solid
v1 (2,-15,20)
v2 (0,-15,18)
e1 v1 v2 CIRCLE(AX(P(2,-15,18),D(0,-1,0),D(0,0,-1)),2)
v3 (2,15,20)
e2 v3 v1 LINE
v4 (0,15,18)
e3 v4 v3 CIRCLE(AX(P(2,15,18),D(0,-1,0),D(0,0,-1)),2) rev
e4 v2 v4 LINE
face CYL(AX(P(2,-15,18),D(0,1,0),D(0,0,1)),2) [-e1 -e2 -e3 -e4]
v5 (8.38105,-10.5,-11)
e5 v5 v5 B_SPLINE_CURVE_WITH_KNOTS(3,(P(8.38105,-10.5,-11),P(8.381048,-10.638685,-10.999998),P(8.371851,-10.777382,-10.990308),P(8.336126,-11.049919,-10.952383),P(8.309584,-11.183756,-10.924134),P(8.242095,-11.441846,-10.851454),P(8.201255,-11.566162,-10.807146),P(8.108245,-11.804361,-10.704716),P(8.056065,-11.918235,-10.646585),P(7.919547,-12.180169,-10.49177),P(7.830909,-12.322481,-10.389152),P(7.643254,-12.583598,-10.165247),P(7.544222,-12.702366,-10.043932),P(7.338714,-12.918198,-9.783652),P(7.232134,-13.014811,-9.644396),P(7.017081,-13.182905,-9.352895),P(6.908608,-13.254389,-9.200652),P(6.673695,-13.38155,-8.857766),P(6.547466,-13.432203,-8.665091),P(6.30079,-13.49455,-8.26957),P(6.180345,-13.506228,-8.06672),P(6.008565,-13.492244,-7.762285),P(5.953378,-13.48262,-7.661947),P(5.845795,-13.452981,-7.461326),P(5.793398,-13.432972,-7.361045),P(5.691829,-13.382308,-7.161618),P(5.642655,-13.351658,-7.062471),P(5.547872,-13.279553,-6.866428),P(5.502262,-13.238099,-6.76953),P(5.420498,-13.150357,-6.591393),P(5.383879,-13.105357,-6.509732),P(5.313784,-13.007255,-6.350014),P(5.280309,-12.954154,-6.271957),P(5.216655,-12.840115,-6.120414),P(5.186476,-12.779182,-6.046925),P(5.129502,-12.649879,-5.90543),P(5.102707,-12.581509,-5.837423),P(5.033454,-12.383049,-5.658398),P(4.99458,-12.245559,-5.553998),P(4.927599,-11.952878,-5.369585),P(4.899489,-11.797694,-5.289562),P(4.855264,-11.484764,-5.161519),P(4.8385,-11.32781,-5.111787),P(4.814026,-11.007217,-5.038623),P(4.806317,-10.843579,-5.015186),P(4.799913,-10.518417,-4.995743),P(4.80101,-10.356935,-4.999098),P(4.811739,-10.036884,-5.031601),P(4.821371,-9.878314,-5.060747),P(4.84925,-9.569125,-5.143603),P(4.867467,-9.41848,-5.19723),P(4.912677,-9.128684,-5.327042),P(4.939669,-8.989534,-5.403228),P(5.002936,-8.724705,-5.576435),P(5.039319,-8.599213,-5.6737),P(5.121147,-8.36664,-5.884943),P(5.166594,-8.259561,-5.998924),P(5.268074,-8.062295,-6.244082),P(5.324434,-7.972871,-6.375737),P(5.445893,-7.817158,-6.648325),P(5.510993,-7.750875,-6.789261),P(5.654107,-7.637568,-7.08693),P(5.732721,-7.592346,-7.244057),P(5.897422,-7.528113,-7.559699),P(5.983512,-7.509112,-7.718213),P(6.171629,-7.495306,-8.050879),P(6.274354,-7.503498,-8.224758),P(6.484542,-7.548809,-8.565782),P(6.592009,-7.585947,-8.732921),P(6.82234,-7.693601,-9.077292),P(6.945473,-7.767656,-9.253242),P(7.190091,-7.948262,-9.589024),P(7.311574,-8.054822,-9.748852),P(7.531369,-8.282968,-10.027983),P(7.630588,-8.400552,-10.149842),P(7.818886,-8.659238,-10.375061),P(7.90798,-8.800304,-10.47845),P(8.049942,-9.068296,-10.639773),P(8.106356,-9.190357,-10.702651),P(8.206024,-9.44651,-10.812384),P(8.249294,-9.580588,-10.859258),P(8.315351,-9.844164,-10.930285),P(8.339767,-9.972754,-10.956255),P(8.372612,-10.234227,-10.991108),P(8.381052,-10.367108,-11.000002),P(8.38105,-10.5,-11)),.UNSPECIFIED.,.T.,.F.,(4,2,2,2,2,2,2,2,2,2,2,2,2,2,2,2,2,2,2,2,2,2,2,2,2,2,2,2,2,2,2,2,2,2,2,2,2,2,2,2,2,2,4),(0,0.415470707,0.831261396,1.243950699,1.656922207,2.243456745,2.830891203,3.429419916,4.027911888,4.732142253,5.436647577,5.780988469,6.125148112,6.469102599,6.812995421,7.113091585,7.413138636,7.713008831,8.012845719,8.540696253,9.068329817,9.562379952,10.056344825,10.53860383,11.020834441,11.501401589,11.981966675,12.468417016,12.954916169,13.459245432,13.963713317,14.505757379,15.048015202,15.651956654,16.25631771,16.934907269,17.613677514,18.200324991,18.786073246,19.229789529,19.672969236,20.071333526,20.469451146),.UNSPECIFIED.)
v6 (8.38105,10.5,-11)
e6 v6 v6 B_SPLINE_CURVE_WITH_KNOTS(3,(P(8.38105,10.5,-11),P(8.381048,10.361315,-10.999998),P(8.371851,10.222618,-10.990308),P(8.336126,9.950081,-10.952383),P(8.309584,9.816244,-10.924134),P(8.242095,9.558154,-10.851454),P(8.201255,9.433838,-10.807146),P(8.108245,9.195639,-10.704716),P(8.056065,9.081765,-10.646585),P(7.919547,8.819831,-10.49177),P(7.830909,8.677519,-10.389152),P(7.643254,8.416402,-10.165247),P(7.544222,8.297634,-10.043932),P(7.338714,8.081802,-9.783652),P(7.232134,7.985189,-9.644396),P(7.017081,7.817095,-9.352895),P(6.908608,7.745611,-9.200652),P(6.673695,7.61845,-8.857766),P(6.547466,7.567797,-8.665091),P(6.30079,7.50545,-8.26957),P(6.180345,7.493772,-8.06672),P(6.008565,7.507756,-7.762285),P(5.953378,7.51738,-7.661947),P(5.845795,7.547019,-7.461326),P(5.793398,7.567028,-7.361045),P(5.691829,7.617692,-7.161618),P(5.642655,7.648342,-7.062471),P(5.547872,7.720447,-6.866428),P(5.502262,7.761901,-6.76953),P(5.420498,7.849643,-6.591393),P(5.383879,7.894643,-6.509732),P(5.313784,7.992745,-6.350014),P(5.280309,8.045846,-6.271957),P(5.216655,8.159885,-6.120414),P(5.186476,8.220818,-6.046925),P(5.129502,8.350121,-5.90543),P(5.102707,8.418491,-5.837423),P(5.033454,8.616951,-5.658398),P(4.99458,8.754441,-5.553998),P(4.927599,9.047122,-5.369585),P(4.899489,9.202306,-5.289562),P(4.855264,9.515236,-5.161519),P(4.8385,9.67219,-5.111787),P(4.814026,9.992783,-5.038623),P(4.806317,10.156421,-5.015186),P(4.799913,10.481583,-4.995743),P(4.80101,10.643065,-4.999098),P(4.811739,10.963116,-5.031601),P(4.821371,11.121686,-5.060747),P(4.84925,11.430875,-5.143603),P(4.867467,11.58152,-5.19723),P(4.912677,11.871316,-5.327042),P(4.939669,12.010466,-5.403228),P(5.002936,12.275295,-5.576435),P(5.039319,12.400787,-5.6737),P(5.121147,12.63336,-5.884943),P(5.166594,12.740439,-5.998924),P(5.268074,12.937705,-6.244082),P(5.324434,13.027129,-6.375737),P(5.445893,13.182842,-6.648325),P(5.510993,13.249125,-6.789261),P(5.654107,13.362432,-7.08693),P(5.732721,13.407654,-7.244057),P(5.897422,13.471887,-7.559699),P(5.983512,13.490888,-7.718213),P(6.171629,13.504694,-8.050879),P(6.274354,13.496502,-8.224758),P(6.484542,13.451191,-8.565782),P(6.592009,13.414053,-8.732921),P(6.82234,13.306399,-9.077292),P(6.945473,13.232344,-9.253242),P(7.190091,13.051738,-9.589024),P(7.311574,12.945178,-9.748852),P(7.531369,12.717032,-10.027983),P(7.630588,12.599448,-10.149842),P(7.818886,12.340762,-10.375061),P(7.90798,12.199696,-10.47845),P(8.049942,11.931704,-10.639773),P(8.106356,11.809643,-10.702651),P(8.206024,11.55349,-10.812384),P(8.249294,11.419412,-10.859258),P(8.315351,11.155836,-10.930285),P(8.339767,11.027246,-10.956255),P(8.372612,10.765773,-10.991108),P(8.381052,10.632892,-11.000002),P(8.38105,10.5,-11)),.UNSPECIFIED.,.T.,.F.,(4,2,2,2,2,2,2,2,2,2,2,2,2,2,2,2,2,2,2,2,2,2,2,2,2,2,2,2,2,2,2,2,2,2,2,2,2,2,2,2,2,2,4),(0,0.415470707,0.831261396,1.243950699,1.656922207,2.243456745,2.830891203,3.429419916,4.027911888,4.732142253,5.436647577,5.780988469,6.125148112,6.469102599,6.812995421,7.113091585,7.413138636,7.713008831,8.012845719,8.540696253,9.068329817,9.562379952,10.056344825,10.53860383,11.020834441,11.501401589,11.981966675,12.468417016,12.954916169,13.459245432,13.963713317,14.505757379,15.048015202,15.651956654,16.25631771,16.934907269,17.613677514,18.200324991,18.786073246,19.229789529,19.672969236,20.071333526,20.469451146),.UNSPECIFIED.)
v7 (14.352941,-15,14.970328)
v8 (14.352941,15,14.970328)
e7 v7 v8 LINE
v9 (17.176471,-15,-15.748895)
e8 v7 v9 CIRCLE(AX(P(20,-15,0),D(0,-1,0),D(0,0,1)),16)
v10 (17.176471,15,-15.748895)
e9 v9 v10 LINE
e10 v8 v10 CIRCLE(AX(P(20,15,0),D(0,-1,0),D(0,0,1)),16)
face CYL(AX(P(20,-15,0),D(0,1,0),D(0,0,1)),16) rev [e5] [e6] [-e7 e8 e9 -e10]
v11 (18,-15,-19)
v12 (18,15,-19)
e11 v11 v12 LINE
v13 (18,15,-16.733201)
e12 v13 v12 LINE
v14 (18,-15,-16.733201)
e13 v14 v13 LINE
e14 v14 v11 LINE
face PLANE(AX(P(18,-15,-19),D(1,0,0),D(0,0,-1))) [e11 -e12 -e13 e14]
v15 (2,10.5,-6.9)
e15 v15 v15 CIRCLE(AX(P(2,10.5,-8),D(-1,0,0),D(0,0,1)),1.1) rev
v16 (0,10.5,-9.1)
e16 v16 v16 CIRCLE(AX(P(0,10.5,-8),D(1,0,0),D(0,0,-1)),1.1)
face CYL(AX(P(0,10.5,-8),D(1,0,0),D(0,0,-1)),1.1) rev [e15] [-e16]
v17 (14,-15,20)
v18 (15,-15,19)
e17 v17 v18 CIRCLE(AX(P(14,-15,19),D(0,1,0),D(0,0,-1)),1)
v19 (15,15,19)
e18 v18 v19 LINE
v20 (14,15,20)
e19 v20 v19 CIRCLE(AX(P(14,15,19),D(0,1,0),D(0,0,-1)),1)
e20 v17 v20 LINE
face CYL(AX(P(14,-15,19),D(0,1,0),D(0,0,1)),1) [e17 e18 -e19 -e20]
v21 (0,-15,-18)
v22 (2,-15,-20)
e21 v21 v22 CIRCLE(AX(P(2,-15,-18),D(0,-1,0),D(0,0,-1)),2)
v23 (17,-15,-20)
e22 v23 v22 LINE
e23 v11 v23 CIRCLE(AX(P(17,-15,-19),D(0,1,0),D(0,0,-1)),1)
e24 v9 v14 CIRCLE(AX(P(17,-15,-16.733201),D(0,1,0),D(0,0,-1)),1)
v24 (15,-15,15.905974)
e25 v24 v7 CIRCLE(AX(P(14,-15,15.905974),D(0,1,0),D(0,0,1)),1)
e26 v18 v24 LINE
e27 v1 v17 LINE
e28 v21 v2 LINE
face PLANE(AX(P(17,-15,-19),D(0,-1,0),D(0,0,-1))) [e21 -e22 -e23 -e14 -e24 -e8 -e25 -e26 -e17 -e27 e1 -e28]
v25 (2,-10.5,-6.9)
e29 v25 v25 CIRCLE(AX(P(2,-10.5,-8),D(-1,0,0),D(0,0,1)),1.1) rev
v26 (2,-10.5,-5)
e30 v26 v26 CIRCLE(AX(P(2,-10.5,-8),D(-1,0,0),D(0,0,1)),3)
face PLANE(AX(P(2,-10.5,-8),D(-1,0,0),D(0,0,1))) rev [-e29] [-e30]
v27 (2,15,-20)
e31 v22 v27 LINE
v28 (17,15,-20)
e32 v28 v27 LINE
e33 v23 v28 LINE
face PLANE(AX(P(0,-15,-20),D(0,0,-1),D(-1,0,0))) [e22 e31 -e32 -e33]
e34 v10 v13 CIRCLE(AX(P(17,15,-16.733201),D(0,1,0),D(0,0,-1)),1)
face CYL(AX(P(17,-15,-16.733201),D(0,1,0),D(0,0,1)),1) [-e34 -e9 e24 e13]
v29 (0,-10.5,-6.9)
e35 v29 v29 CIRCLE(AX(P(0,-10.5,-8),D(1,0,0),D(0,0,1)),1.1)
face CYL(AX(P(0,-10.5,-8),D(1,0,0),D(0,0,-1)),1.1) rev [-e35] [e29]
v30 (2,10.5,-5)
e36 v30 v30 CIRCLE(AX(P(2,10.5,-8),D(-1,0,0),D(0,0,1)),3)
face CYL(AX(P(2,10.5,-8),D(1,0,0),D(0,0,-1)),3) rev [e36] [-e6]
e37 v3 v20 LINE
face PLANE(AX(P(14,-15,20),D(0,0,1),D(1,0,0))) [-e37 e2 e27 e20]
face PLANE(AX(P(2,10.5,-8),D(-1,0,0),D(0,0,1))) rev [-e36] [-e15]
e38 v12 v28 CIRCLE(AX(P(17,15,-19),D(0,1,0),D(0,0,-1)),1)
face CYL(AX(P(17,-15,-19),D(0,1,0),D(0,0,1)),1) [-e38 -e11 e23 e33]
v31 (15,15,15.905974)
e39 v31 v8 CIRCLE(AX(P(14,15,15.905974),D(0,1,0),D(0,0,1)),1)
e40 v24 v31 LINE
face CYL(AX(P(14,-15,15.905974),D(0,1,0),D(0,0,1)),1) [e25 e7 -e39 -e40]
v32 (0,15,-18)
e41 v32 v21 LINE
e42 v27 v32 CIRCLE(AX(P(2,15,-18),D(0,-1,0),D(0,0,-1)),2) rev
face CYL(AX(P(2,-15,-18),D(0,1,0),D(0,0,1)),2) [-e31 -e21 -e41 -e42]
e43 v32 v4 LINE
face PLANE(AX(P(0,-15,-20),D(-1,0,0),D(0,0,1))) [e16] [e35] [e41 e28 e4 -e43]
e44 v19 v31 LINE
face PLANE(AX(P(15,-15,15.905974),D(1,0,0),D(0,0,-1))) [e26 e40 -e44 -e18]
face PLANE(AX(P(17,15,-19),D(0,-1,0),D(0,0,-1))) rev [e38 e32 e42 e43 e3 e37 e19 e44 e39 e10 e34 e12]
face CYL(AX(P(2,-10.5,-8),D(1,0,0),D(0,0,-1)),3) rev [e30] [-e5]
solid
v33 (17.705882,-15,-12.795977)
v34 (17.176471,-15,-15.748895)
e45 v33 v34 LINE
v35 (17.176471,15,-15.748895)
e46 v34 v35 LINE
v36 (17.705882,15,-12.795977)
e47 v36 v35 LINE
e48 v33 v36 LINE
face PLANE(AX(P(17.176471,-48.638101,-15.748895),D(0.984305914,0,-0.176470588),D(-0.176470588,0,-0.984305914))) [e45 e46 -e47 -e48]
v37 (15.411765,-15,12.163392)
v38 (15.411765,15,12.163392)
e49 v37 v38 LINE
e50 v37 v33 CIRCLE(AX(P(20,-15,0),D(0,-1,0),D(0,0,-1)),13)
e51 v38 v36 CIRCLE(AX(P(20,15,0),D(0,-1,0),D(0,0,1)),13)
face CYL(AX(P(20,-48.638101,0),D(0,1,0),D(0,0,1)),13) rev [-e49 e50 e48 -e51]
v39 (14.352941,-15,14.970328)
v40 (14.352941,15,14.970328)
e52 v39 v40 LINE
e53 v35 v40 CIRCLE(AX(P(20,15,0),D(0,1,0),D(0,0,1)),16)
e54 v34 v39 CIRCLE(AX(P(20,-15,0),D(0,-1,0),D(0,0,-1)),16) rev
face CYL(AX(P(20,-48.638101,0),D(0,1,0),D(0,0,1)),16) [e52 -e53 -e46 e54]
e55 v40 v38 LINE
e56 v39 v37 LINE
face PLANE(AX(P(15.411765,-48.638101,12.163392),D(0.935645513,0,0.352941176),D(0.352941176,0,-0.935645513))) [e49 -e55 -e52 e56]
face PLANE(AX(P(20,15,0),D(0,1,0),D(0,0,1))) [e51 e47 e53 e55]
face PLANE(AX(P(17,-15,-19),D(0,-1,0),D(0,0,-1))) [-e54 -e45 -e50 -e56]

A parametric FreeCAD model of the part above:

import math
import FreeCAD as App
import Part
import Sketcher

V = App.Vector
Q = App.Units.Quantity


def edges_at(feature, points):
    """Names of the edges that pass closest to the given points."""
    edges = feature.Shape.Edges
    near = lambda p: min(range(len(edges)), key=lambda i: edges[i].distToShape(Part.Vertex(*p))[0])
    return sorted({f"Edge{near(p) + 1}" for p in points})

doc = App.newDocument("Part")
body = doc.addObject("PartDesign::Body", "Body")

# Sketch on XZ plane
sketch1 = doc.addObject("Sketcher::SketchObject", "Sketch")
body.addObject(sketch1)
sketch1.AttachmentSupport = (doc.XZ_Plane, [""])
sketch1.MapMode = "FlatFace"
sketch1.addGeometry([
    Part.LineSegment(V(0, -20, 0), V(0, 20, 0)),  # 0
    Part.LineSegment(V(0, 20, 0), V(14, 20, 0)),  # 1
    Part.ArcOfCircle(Part.Circle(V(14, 19, 0), V(0, 0, 1), 1), math.radians(0), math.radians(90)),  # 2
    Part.LineSegment(V(15, 19, 0), V(15, 15.9, 0)),  # 3
    Part.ArcOfCircle(Part.Circle(V(14, 15.9, 0), V(0, 0, 1), 1), math.radians(-69), math.radians(0)),  # 4
    Part.ArcOfCircle(Part.Circle(V(20, 0, 0), V(0, 0, 1), 16), math.radians(111), math.radians(260)),  # 5
    Part.ArcOfCircle(Part.Circle(V(17, -16.7, 0), V(0, 0, 1), 1), math.radians(0), math.radians(80)),  # 6
    Part.LineSegment(V(18, -16.7, 0), V(18, -19, 0)),  # 7
    Part.ArcOfCircle(Part.Circle(V(17, -19, 0), V(0, 0, 1), 1), math.radians(-90), math.radians(0)),  # 8
    Part.LineSegment(V(17, -20, 0), V(0, -20, 0)),  # 9
], False)
sketch1.addConstraint([
    Sketcher.Constraint("Coincident", 0, 2, 1, 1),
    Sketcher.Constraint("Tangent", 1, 2, 2, 2),
    Sketcher.Constraint("Tangent", 2, 1, 3, 1),
    Sketcher.Constraint("Tangent", 3, 2, 4, 2),
    Sketcher.Constraint("Tangent", 4, 1, 5, 1),
    Sketcher.Constraint("Tangent", 5, 2, 6, 2),
    Sketcher.Constraint("Tangent", 6, 1, 7, 1),
    Sketcher.Constraint("Tangent", 7, 2, 8, 2),
    Sketcher.Constraint("Tangent", 8, 1, 9, 1),
    Sketcher.Constraint("Coincident", 9, 2, 0, 1),
    Sketcher.Constraint("Vertical", 0),
    Sketcher.Constraint("Horizontal", 1),
    Sketcher.Constraint("Vertical", 3),
    Sketcher.Constraint("Vertical", 7),
    Sketcher.Constraint("Horizontal", 9),
    Sketcher.Constraint("Equal", 2, 4),
    Sketcher.Constraint("Equal", 4, 6),
    Sketcher.Constraint("Equal", 6, 8),
    Sketcher.Constraint("Symmetric", 0, 2, 9, 2, -1, 1),
    Sketcher.Constraint("PointOnObject", 5, 3, -1),
    Sketcher.Constraint("Radius", 2, Q("1 mm")),
    Sketcher.Constraint("Radius", 5, Q("16 mm")),
    Sketcher.Constraint("DistanceX", 1, 1, 1, 2, Q("14 mm")),
    Sketcher.Constraint("DistanceX", 9, 2, 9, 1, Q("17 mm")),
    Sketcher.Constraint("DistanceY", 0, 1, 0, 2, Q("40 mm")),
    Sketcher.Constraint("DistanceX", -1, 1, 5, 3, Q("20 mm")),
])
pad1 = doc.addObject("PartDesign::Pad", "Pad")
body.addObject(pad1)
pad1.Profile = sketch1
pad1.Type = "TwoLengths"
pad1.Length = 15
pad1.Length2 = 15
pad1.Reversed = True

# Sketch on YZ plane
sketch2 = doc.addObject("Sketcher::SketchObject", "Sketch001")
body.addObject(sketch2)
sketch2.AttachmentSupport = (doc.YZ_Plane, [""])
sketch2.MapMode = "FlatFace"
sketch2.AttachmentOffset = App.Placement(V(0, 0, 18), App.Rotation())
sketch2.addGeometry([
    Part.Circle(V(10.5, -8, 0), V(0, 0, 1), 1.1),
    Part.Circle(V(-10.5, -8, 0), V(0, 0, 1), 1.1),
], False)
sketch2.addConstraint([
    Sketcher.Constraint("Equal", 0, 1),
    Sketcher.Constraint("Symmetric", 0, 3, 1, 3, -2),
    Sketcher.Constraint("Diameter", 0, Q("2.2 mm")),
    Sketcher.Constraint("DistanceY", 0, 3, -1, 1, Q("8 mm")),
    Sketcher.Constraint("DistanceX", 1, 3, 0, 3, Q("21 mm")),
])
pocket1 = doc.addObject("PartDesign::Pocket", "Pocket")
body.addObject(pocket1)
pocket1.Profile = sketch2
pocket1.Type = "ThroughAll"

# Sketch on YZ plane
sketch3 = doc.addObject("Sketcher::SketchObject", "Sketch002")
body.addObject(sketch3)
sketch3.AttachmentSupport = (doc.YZ_Plane, [""])
sketch3.MapMode = "FlatFace"
sketch3.AttachmentOffset = App.Placement(V(0, 0, 10), App.Rotation())
sketch3.addGeometry([
    Part.Circle(V(10.5, -8, 0), V(0, 0, 1), 3),
    Part.Circle(V(-10.5, -8, 0), V(0, 0, 1), 3),
], False)
sketch3.addConstraint([
    Sketcher.Constraint("Equal", 0, 1),
    Sketcher.Constraint("Symmetric", 0, 3, 1, 3, -2),
    Sketcher.Constraint("Diameter", 0, Q("6 mm")),
    Sketcher.Constraint("DistanceY", 0, 3, -1, 1, Q("8 mm")),
    Sketcher.Constraint("DistanceX", 1, 3, 0, 3, Q("21 mm")),
])
pocket2 = doc.addObject("PartDesign::Pocket", "Pocket001")
body.addObject(pocket2)
pocket2.Profile = sketch3
pocket2.Length = 8
doc.recompute()

fillet = doc.addObject("PartDesign::Fillet", "Fillet")
body.addObject(fillet)
fillet.Base = (pocket2, edges_at(pocket2, [(0, 0, 20), (0, 0, -20)]))
fillet.Radius = 2
body2 = doc.addObject("PartDesign::Body", "Body001")

# Sketch on XZ plane
sketch4 = doc.addObject("Sketcher::SketchObject", "Sketch003")
body2.addObject(sketch4)
sketch4.AttachmentSupport = (doc.getObject("XZ_Plane001"), [""])
sketch4.MapMode = "FlatFace"
sketch4.AttachmentOffset = App.Placement(V(0, 0, -15), App.Rotation())
sketch4.addGeometry([
    Part.LineSegment(V(17.7, -12.8, 0), V(17.2, -15.7, 0)),
    Part.ArcOfCircle(Part.Circle(V(20, 0, 0), V(0, 0, 1), 16), math.radians(111), math.radians(260)),
    Part.LineSegment(V(14.4, 15, 0), V(15.4, 12.2, 0)),
    Part.ArcOfCircle(Part.Circle(V(20, 0, 0), V(0, 0, 1), 13), math.radians(111), math.radians(260)),
], False)
sketch4.addConstraint([
    Sketcher.Constraint("Coincident", 0, 2, 1, 2),
    Sketcher.Constraint("Coincident", 1, 1, 2, 1),
    Sketcher.Constraint("Coincident", 2, 2, 3, 1),
    Sketcher.Constraint("Coincident", 3, 2, 0, 1),
    Sketcher.Constraint("Coincident", 3, 3, 1, 3),
    Sketcher.Constraint("PointOnObject", 1, 3, -1),
    Sketcher.Constraint("Radius", 1, Q("16 mm")),
    Sketcher.Constraint("Radius", 3, Q("13 mm")),
    Sketcher.Constraint("DistanceX", -1, 1, 1, 3, Q("20 mm")),
    Sketcher.Constraint("DistanceX", -1, 1, 0, 2, Q("17.176471 mm")),
    Sketcher.Constraint("DistanceX", -1, 1, 1, 1, Q("14.352941 mm")),
    Sketcher.Constraint("DistanceY", -1, 1, 2, 2, Q("12.163392 mm")),
    Sketcher.Constraint("DistanceX", 0, 2, 3, 2, Q("0.529412 mm")),
])
pad2 = doc.addObject("PartDesign::Pad", "Pad001")
body2.addObject(pad2)
pad2.Profile = sketch4
pad2.Length = 30

doc.recompute()
